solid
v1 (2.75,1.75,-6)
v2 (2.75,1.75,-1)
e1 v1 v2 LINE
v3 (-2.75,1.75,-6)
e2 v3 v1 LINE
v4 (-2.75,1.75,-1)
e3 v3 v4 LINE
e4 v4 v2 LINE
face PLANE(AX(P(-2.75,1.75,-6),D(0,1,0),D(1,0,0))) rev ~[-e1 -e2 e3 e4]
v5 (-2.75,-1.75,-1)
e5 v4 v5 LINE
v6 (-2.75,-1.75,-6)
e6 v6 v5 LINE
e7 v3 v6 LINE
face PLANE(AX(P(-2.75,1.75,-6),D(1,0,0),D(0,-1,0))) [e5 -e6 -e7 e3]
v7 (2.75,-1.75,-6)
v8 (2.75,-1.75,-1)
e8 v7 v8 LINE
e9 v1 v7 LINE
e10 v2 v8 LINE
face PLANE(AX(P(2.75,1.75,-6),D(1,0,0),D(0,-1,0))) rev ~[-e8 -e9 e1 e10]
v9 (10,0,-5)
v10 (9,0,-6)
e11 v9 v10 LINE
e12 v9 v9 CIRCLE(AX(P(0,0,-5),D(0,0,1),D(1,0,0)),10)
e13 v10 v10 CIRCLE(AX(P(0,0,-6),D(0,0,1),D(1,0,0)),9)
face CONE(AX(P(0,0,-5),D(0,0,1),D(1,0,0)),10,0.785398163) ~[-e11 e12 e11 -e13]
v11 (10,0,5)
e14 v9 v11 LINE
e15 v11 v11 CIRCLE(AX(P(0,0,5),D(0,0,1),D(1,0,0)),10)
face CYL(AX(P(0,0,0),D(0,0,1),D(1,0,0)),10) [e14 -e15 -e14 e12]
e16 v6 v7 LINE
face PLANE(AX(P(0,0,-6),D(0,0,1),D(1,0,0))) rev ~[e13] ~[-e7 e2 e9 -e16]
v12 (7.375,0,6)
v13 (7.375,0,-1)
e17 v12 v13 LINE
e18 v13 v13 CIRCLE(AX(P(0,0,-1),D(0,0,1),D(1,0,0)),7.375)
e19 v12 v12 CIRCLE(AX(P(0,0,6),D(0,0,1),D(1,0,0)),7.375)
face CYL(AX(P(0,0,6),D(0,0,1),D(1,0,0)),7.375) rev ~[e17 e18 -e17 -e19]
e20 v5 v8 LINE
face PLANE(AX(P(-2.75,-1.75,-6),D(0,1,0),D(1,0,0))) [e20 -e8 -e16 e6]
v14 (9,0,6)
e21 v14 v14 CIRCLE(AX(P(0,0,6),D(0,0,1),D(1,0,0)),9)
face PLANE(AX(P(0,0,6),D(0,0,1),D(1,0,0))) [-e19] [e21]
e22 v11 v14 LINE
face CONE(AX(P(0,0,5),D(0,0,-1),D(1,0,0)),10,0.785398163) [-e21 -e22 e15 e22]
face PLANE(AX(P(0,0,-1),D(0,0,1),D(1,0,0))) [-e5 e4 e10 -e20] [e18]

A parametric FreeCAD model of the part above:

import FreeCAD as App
import Part
import Sketcher

V = App.Vector


def edges_at(feature, points):
    """Names of the edges that pass closest to the given points."""
    edges = feature.Shape.Edges
    near = lambda p: min(range(len(edges)), key=lambda i: edges[i].distToShape(Part.Vertex(*p))[0])
    return sorted({f"Edge{near(p) + 1}" for p in points})


def add_polygon(sketch, points):
    """Adds a closed chain of lines whose ends are joined by coincident constraints."""
    first, n = sketch.GeometryCount, len(points)
    for a, b in zip(points, points[1:] + points[:1]):
        sketch.addGeometry(Part.LineSegment(App.Vector(*a, 0), App.Vector(*b, 0)), False)
    for i in range(n):
        sketch.addConstraint(Sketcher.Constraint("Coincident", first + i, 2, first + (i + 1) % n, 1))

doc = App.newDocument("Part")
body = doc.addObject("PartDesign::Body", "Body")

# Sketch on XY plane
sketch1 = doc.addObject("Sketcher::SketchObject", "Sketch")
body.addObject(sketch1)
sketch1.AttachmentSupport = (doc.XY_Plane, [""])
sketch1.MapMode = "FlatFace"
sketch1.addGeometry(Part.Circle(V(0, 0, 0), V(0, 0, 1), 10), False)
sketch1.addConstraint([
    Sketcher.Constraint("Coincident", 0, 3, -1, 1),
    Sketcher.Constraint("Diameter", 0, 20.0),
])
pad1 = doc.addObject("PartDesign::Pad", "Pad")
body.addObject(pad1)
pad1.Profile = sketch1
pad1.Length = 12
pad1.Midplane = True

# Sketch on XY plane
sketch2 = doc.addObject("Sketcher::SketchObject", "Sketch001")
body.addObject(sketch2)
sketch2.AttachmentSupport = (doc.XY_Plane, [""])
sketch2.MapMode = "FlatFace"
sketch2.AttachmentOffset = App.Placement(V(0, 0, -6), App.Rotation())
add_polygon(sketch2, [(-2.8, -1.8), (-2.8, 1.8), (2.8, 1.8), (2.8, -1.8)])  # lines 0-3
sketch2.addConstraint([
    Sketcher.Constraint("Vertical", 0),
    Sketcher.Constraint("Horizontal", 1),
    Sketcher.Constraint("Vertical", 2),
    Sketcher.Constraint("Horizontal", 3),
    Sketcher.Constraint("Symmetric", 0, 2, 2, 2, -1, 1),
    Sketcher.Constraint("DistanceX", 1, 1, 1, 2, 5.5),
    Sketcher.Constraint("DistanceY", 0, 1, 0, 2, 3.5),
])
pocket1 = doc.addObject("PartDesign::Pocket", "Pocket")
body.addObject(pocket1)
pocket1.Profile = sketch2
pocket1.Type = "ThroughAll"
pocket1.Reversed = True

# Sketch on XY plane
sketch3 = doc.addObject("Sketcher::SketchObject", "Sketch002")
body.addObject(sketch3)
sketch3.AttachmentSupport = (doc.XY_Plane, [""])
sketch3.MapMode = "FlatFace"
sketch3.AttachmentOffset = App.Placement(V(0, 0, 6), App.Rotation())
sketch3.addGeometry(Part.Circle(V(0, 0, 0), V(0, 0, 1), 7), False)
sketch3.addConstraint([
    Sketcher.Constraint("Coincident", 0, 3, -1, 1),
    Sketcher.Constraint("Diameter", 0, 14.75),
])
pocket2 = doc.addObject("PartDesign::Pocket", "Pocket001")
body.addObject(pocket2)
pocket2.Profile = sketch3
pocket2.Length = 7
doc.recompute()

chamfer = doc.addObject("PartDesign::Chamfer", "Chamfer")
body.addObject(chamfer)
chamfer.Base = (pocket2, edges_at(pocket2, [(-10, 0, 6), (-10, 0, -6)]))
chamfer.Size = 1

doc.recompute()
